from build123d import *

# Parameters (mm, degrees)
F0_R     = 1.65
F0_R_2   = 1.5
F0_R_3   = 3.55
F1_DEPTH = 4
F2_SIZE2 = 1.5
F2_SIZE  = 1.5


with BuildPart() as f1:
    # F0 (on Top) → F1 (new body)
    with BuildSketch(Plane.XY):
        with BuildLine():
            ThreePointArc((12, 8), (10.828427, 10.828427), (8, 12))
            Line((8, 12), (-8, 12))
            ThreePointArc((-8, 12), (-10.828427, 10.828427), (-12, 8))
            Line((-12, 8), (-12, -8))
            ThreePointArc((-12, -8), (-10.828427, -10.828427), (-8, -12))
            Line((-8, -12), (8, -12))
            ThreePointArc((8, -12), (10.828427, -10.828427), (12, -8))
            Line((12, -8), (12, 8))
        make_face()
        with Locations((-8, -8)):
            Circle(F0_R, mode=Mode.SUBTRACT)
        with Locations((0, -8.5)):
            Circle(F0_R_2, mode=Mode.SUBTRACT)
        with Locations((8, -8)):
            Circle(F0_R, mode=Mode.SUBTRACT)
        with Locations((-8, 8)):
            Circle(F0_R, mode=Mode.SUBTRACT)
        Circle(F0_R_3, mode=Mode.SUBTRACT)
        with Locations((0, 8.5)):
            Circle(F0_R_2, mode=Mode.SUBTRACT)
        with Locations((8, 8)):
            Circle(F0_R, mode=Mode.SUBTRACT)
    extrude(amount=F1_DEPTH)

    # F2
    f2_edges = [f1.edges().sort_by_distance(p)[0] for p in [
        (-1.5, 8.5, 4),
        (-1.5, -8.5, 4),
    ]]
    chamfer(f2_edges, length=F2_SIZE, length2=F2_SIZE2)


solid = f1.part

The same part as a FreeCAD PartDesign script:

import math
import FreeCAD as App
import Part
import Sketcher
from FreeCAD import Vector


def edges_at(feature, points):
    """Names of the edges that pass closest to the given points."""
    edges = feature.Shape.Edges
    near = lambda p: min(range(len(edges)), key=lambda i: edges[i].distToShape(Part.Vertex(*p))[0])
    return sorted({f"Edge{near(p) + 1}" for p in points})

doc = App.newDocument("Part")
body = doc.addObject("PartDesign::Body", "Body")

# Sketch on XY plane
sketch1 = body.newObject("Sketcher::SketchObject", "Sketch")
sketch1.AttachmentSupport = (doc.getObject("XY_Plane"), [""])
sketch1.MapMode = "FlatFace"
sketch1.addGeometry(Part.ArcOfCircle(Part.Circle(Vector(8, 8, 0), Vector(0, 0, 1), 4), math.radians(0.000006), math.radians(89.999994)), False)
sketch1.addGeometry(Part.LineSegment(Vector(8, 12, 0), Vector(-8, 12, 0)), False)
sketch1.addGeometry(Part.ArcOfCircle(Part.Circle(Vector(-8, 8, 0), Vector(0, 0, 1), 4), math.radians(90.000006), math.radians(179.999994)), False)
sketch1.addGeometry(Part.LineSegment(Vector(-12, 8, 0), Vector(-12, -8, 0)), False)
sketch1.addGeometry(Part.ArcOfCircle(Part.Circle(Vector(-8, -8, 0), Vector(0, 0, 1), 4), math.radians(-179.999994), math.radians(-90.000006)), False)
sketch1.addGeometry(Part.LineSegment(Vector(-8, -12, 0), Vector(8, -12, 0)), False)
sketch1.addGeometry(Part.ArcOfCircle(Part.Circle(Vector(8, -8, 0), Vector(0, 0, 1), 4), math.radians(-89.999994), math.radians(-0.000006)), False)
sketch1.addGeometry(Part.LineSegment(Vector(12, -8, 0), Vector(12, 8, 0)), False)
sketch1.addGeometry(Part.Circle(Vector(-8, -8, 0), Vector(0, 0, 1), 1.65), False)
sketch1.addGeometry(Part.Circle(Vector(0, -8.5, 0), Vector(0, 0, 1), 1.5), False)
sketch1.addGeometry(Part.Circle(Vector(8, -8, 0), Vector(0, 0, 1), 1.65), False)
sketch1.addGeometry(Part.Circle(Vector(-8, 8, 0), Vector(0, 0, 1), 1.65), False)
sketch1.addGeometry(Part.Circle(Vector(0, 0, 0), Vector(0, 0, 1), 3.55), False)
sketch1.addGeometry(Part.Circle(Vector(0, 8.5, 0), Vector(0, 0, 1), 1.5), False)
sketch1.addGeometry(Part.Circle(Vector(8, 8, 0), Vector(0, 0, 1), 1.65), False)
sketch1.addConstraint(Sketcher.Constraint("Tangent", 0, 2, 1, 1))
sketch1.addConstraint(Sketcher.Constraint("Tangent", 1, 2, 2, 1))
sketch1.addConstraint(Sketcher.Constraint("Tangent", 2, 2, 3, 1))
sketch1.addConstraint(Sketcher.Constraint("Tangent", 3, 2, 4, 1))
sketch1.addConstraint(Sketcher.Constraint("Tangent", 4, 2, 5, 1))
sketch1.addConstraint(Sketcher.Constraint("Tangent", 5, 2, 6, 1))
sketch1.addConstraint(Sketcher.Constraint("Tangent", 6, 2, 7, 1))
sketch1.addConstraint(Sketcher.Constraint("Tangent", 7, 2, 0, 1))
sketch1.addConstraint(Sketcher.Constraint("Horizontal", 1))
sketch1.addConstraint(Sketcher.Constraint("Vertical", 3))
sketch1.addConstraint(Sketcher.Constraint("Horizontal", 5))
sketch1.addConstraint(Sketcher.Constraint("Vertical", 7))
sketch1.addConstraint(Sketcher.Constraint("Coincident", 12, 3, -1, 1))
sketch1.addConstraint(Sketcher.Constraint("Coincident", 8, 3, 4, 3))
sketch1.addConstraint(Sketcher.Constraint("Coincident", 10, 3, 6, 3))
sketch1.addConstraint(Sketcher.Constraint("Coincident", 11, 3, 2, 3))
sketch1.addConstraint(Sketcher.Constraint("Coincident", 14, 3, 0, 3))
sketch1.addConstraint(Sketcher.Constraint("Equal", 0, 2))
sketch1.addConstraint(Sketcher.Constraint("Equal", 2, 4))
sketch1.addConstraint(Sketcher.Constraint("Equal", 4, 6))
sketch1.addConstraint(Sketcher.Constraint("Equal", 8, 10))
sketch1.addConstraint(Sketcher.Constraint("Equal", 10, 11))
sketch1.addConstraint(Sketcher.Constraint("Equal", 9, 13))
sketch1.addConstraint(Sketcher.Constraint("Equal", 11, 14))
sketch1.addConstraint(Sketcher.Constraint("Symmetric", 0, 3, 4, 3, -1, 1))
sketch1.addConstraint(Sketcher.Constraint("Symmetric", 9, 3, 13, 3, -1, 1))
sketch1.addConstraint(Sketcher.Constraint("PointOnObject", 9, 3, -2))
sketch1.addConstraint(Sketcher.Constraint("Equal", 5, 3))
sketch1.addConstraint(Sketcher.Constraint("Diameter", 9, 3.0))
sketch1.addConstraint(Sketcher.Constraint("Radius", 0, 4.0))
sketch1.addConstraint(Sketcher.Constraint("Diameter", 8, 3.3))
sketch1.addConstraint(Sketcher.Constraint("Diameter", 12, 7.1))
sketch1.addConstraint(Sketcher.Constraint("DistanceX", 1, 2, 1, 1, 16.0))
sketch1.addConstraint(Sketcher.Constraint("DistanceY", 9, 3, 13, 3, 17.0))
pad1 = body.newObject("PartDesign::Pad", "Pad")
pad1.Profile = sketch1
pad1.Length = 4
doc.recompute()

chamfer = body.newObject("PartDesign::Chamfer", "Chamfer")
chamfer.Base = (pad1, edges_at(pad1, [(-1.5, 8.5, 4), (-1.5, -8.5, 4)]))
chamfer.ChamferType = "Two distances"
chamfer.Size = 1.5
chamfer.Size2 = 1.5

doc.recompute()
